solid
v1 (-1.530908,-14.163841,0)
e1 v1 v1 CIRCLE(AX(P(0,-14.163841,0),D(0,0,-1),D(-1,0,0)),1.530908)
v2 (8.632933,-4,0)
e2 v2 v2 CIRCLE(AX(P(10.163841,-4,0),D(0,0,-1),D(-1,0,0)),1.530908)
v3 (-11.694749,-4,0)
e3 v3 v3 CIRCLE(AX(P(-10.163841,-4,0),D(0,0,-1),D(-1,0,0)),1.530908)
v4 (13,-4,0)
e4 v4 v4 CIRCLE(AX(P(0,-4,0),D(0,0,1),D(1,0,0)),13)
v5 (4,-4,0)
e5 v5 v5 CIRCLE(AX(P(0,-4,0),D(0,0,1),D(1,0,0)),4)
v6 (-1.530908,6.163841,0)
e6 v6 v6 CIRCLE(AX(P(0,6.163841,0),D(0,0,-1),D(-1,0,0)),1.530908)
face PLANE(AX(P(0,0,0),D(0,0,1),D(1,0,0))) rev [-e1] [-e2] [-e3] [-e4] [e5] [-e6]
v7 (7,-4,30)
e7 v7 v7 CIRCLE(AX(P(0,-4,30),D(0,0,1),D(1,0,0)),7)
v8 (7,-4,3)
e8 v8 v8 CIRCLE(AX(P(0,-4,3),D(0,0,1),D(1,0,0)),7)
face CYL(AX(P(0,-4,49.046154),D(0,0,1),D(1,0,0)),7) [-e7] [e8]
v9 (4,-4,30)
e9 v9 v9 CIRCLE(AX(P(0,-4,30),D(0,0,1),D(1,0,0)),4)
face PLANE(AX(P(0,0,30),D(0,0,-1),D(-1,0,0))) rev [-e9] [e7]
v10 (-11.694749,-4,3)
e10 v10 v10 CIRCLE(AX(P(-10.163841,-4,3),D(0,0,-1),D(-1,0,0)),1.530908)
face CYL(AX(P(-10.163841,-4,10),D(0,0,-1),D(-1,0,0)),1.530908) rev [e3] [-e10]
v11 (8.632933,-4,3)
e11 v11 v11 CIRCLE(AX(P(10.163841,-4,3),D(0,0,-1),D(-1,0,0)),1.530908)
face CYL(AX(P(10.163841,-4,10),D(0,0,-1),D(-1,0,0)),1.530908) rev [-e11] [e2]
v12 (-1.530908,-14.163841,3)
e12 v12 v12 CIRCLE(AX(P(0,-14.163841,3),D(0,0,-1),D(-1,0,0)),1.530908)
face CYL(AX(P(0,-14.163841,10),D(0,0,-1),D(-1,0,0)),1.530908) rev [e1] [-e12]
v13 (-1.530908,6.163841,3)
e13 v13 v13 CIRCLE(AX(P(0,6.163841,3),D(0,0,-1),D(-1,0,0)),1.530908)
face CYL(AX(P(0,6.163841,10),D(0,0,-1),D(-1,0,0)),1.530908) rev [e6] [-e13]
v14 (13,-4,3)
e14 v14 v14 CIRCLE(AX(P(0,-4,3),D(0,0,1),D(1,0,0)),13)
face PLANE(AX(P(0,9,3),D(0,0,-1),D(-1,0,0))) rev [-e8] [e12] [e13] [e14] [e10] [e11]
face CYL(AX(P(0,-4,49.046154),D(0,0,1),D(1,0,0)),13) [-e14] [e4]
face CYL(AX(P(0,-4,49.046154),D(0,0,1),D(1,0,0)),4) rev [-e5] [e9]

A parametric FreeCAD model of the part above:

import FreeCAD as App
import Part
import Sketcher

V = App.Vector


def add_polygon(sketch, points):
    """Adds a closed chain of lines whose ends are joined by coincident constraints."""
    first, n = sketch.GeometryCount, len(points)
    for a, b in zip(points, points[1:] + points[:1]):
        sketch.addGeometry(Part.LineSegment(App.Vector(*a, 0), App.Vector(*b, 0)), False)
    for i in range(n):
        sketch.addConstraint(Sketcher.Constraint("Coincident", first + i, 2, first + (i + 1) % n, 1))

doc = App.newDocument("Part")
body = doc.addObject("PartDesign::Body", "Body")

# Sketch on YZ plane
sketch1 = body.newObject("Sketcher::SketchObject", "Sketch")
sketch1.AttachmentSupport = (doc.getObject("YZ_Plane"), [""])
sketch1.MapMode = "FlatFace"
add_polygon(sketch1, [(0, 0), (9, 0), (9, 3), (3, 3), (3, 30), (0, 30)])  # lines 0-5
sketch1.addGeometry(Part.LineSegment(V(-4, 30, 0), V(-4, 0, 0)), True)  # axis
sketch1.addConstraint(Sketcher.Constraint("Horizontal", 0))
sketch1.addConstraint(Sketcher.Constraint("Vertical", 1))
sketch1.addConstraint(Sketcher.Constraint("Horizontal", 2))
sketch1.addConstraint(Sketcher.Constraint("Vertical", 3))
sketch1.addConstraint(Sketcher.Constraint("Horizontal", 4))
sketch1.addConstraint(Sketcher.Constraint("Vertical", 5))
sketch1.addConstraint(Sketcher.Constraint("Vertical", 6))
sketch1.addConstraint(Sketcher.Constraint("Coincident", 5, 2, -1, 1))
sketch1.addConstraint(Sketcher.Constraint("PointOnObject", 6, 2, -1))
sketch1.addConstraint(Sketcher.Constraint("Horizontal", 4, 2, 6, 1))
sketch1.addConstraint(Sketcher.Constraint("Equal", 4, 1))
sketch1.addConstraint(Sketcher.Constraint("DistanceX", 0, 1, 0, 2, 9.0))
sketch1.addConstraint(Sketcher.Constraint("DistanceX", 2, 2, 2, 1, 6.0))
sketch1.addConstraint(Sketcher.Constraint("DistanceY", 3, 1, 3, 2, 27.0))
sketch1.addConstraint(Sketcher.Constraint("DistanceX", 6, 1, -1, 1, 4.0))
revolution = body.newObject("PartDesign::Revolution", "Revolution")
revolution.Profile = sketch1
revolution.ReferenceAxis = (sketch1, ["Axis0"])
revolution.Angle = 360

# Sketch on XY plane
sketch2 = body.newObject("Sketcher::SketchObject", "Sketch001")
sketch2.AttachmentSupport = (doc.getObject("XY_Plane"), [""])
sketch2.MapMode = "FlatFace"
sketch2.addGeometry(Part.Circle(V(0, 6.2, 0), V(0, 0, 1), 1.5), False)
sketch2.addGeometry(Part.Circle(V(-10.2, -4, 0), V(0, 0, 1), 1.5), False)
sketch2.addGeometry(Part.Circle(V(0, -14.2, 0), V(0, 0, 1), 1.5), False)
sketch2.addGeometry(Part.Circle(V(10.2, -4, 0), V(0, 0, 1), 1.5), False)
sketch2.addConstraint(Sketcher.Constraint("Equal", 0, 1))
sketch2.addConstraint(Sketcher.Constraint("Equal", 1, 2))
sketch2.addConstraint(Sketcher.Constraint("Equal", 2, 3))
sketch2.addConstraint(Sketcher.Constraint("Symmetric", 1, 3, 3, 3, -2))
sketch2.addConstraint(Sketcher.Constraint("PointOnObject", 0, 3, -2))
sketch2.addConstraint(Sketcher.Constraint("PointOnObject", 2, 3, -2))
sketch2.addConstraint(Sketcher.Constraint("DistanceY", 1, 3, -1, 1, 4.0))
sketch2.addConstraint(Sketcher.Constraint("Diameter", 0, 3.061816))
sketch2.addConstraint(Sketcher.Constraint("DistanceY", -1, 1, 0, 3, 6.163841))
sketch2.addConstraint(Sketcher.Constraint("DistanceX", 1, 3, -1, 1, 10.163841))
sketch2.addConstraint(Sketcher.Constraint("DistanceY", 2, 3, -1, 1, 14.163841))
pocket1 = body.newObject("PartDesign::Pocket", "Pocket")
pocket1.Profile = sketch2
pocket1.Length = 10
pocket1.Reversed = True

doc.recompute()
